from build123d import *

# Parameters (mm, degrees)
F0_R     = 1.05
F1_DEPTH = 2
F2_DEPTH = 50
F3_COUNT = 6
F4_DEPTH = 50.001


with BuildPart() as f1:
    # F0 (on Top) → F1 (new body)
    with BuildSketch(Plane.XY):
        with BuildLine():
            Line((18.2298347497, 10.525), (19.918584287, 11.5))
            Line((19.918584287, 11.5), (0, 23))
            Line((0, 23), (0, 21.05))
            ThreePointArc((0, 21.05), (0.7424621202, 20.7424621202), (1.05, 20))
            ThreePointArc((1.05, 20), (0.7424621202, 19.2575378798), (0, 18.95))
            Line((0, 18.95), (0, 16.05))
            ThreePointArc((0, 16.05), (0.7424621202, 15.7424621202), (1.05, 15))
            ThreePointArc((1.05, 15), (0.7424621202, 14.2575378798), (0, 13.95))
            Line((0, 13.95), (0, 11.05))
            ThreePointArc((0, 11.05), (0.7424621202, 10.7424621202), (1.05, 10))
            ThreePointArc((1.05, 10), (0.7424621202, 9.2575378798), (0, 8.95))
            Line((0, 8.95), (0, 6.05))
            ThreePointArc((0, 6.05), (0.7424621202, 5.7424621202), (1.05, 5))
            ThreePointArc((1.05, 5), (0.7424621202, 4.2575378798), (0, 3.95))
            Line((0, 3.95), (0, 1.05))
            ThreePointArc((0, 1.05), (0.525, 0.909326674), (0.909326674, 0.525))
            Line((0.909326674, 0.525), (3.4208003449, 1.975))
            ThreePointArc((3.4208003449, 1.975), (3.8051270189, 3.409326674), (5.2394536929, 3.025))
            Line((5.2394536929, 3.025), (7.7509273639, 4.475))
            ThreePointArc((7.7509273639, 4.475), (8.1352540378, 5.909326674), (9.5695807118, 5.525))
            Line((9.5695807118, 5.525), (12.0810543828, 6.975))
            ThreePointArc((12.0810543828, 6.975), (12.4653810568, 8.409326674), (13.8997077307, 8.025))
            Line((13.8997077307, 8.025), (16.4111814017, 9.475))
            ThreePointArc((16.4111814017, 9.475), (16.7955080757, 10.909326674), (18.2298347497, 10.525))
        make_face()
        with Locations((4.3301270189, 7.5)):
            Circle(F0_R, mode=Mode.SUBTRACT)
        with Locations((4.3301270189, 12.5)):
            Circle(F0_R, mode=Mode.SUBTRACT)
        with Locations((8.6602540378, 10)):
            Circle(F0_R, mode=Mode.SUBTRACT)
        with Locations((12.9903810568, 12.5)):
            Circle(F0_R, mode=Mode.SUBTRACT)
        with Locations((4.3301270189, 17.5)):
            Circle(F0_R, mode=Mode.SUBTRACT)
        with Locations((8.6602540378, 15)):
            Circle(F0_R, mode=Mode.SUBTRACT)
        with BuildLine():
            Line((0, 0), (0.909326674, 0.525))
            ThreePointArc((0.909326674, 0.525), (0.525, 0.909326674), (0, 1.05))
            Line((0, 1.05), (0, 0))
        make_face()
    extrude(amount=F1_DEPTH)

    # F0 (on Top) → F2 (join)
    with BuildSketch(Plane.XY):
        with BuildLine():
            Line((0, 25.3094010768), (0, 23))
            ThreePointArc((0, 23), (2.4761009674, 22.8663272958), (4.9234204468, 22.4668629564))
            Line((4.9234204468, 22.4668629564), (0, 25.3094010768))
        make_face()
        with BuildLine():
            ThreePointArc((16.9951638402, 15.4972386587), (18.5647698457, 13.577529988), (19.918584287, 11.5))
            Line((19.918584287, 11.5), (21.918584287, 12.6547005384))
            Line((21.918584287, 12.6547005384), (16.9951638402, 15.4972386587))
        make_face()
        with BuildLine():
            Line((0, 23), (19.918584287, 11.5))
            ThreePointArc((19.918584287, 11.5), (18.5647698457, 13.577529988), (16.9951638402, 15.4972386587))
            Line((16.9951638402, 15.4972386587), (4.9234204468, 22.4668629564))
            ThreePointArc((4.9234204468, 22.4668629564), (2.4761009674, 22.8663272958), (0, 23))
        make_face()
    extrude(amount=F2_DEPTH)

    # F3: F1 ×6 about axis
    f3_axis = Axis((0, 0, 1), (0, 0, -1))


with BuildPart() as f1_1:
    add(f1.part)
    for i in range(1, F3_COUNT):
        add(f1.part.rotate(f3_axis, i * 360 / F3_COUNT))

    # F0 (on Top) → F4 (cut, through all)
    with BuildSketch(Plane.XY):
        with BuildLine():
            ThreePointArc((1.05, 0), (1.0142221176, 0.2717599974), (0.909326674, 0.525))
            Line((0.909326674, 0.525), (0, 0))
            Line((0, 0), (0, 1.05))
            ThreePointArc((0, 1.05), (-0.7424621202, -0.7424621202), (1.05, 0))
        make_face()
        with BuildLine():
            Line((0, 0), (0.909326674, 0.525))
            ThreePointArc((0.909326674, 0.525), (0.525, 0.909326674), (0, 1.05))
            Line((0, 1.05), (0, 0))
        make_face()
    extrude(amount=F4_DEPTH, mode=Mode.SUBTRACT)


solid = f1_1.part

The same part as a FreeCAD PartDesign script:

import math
import FreeCAD as App
import Part
import Sketcher

V = App.Vector
Q = App.Units.Quantity


def add_polygon(sketch, points):
    """Adds a closed chain of lines whose ends are joined by coincident constraints."""
    first, n = sketch.GeometryCount, len(points)
    for a, b in zip(points, points[1:] + points[:1]):
        sketch.addGeometry(Part.LineSegment(App.Vector(*a, 0), App.Vector(*b, 0)), False)
    for i in range(n):
        sketch.addConstraint(Sketcher.Constraint("Coincident", first + i, 2, first + (i + 1) % n, 1))

doc = App.newDocument("Part")
body = doc.addObject("PartDesign::Body", "Body")

# Sketch on XY plane
sketch1 = body.newObject("Sketcher::SketchObject", "Sketch")
sketch1.AttachmentSupport = (doc.getObject("XY_Plane"), [""])
sketch1.MapMode = "FlatFace"
sketch1.addGeometry([
    Part.LineSegment(V(18.229835, 10.525, 0), V(19.918584, 11.5, 0)),  # 0
    Part.LineSegment(V(19.918584, 11.5, 0), V(0, 23, 0)),  # 1
    Part.LineSegment(V(0, 23, 0), V(0, 21.05, 0)),  # 2
    Part.ArcOfCircle(Part.Circle(V(0, 20, 0), V(0, 0, 1), 1.05), math.radians(0), math.radians(90)),  # 3
    Part.ArcOfCircle(Part.Circle(V(0, 20, 0), V(0, 0, 1), 1.05), math.radians(-90), math.radians(0)),  # 4
    Part.LineSegment(V(0, 18.95, 0), V(0, 16.05, 0)),  # 5
    Part.ArcOfCircle(Part.Circle(V(0, 15, 0), V(0, 0, 1), 1.05), math.radians(0), math.radians(90)),  # 6
    Part.ArcOfCircle(Part.Circle(V(0, 15, 0), V(0, 0, 1), 1.05), math.radians(-90), math.radians(0)),  # 7
    Part.LineSegment(V(0, 13.95, 0), V(0, 11.05, 0)),  # 8
    Part.ArcOfCircle(Part.Circle(V(0, 10, 0), V(0, 0, 1), 1.05), math.radians(0), math.radians(90)),  # 9
    Part.ArcOfCircle(Part.Circle(V(0, 10, 0), V(0, 0, 1), 1.05), math.radians(-90), math.radians(0)),  # 10
    Part.LineSegment(V(0, 8.95, 0), V(0, 6.05, 0)),  # 11
    Part.ArcOfCircle(Part.Circle(V(0, 5, 0), V(0, 0, 1), 1.05), math.radians(0), math.radians(90)),  # 12
    Part.ArcOfCircle(Part.Circle(V(0, 5, 0), V(0, 0, 1), 1.05), math.radians(-90), math.radians(0)),  # 13
    Part.LineSegment(V(0, 3.95, 0), V(0, 0, 0)),  # 14
    Part.LineSegment(V(0, 0, 0), V(0.909327, 0.525, 0)),  # 15
    Part.LineSegment(V(0.909327, 0.525, 0), V(3.4208, 1.975, 0)),  # 16
    Part.ArcOfCircle(Part.Circle(V(4.330127, 2.5, 0), V(0, 0, 1), 1.05), math.radians(30), math.radians(210)),  # 17
    Part.LineSegment(V(5.239454, 3.025, 0), V(7.750927, 4.475, 0)),  # 18
    Part.ArcOfCircle(Part.Circle(V(8.660254, 5, 0), V(0, 0, 1), 1.05), math.radians(30), math.radians(210)),  # 19
    Part.LineSegment(V(9.569581, 5.525, 0), V(12.081054, 6.975, 0)),  # 20
    Part.ArcOfCircle(Part.Circle(V(12.990381, 7.5, 0), V(0, 0, 1), 1.05), math.radians(30), math.radians(210)),  # 21
    Part.LineSegment(V(13.899708, 8.025, 0), V(16.411181, 9.475, 0)),  # 22
    Part.ArcOfCircle(Part.Circle(V(17.320508, 10, 0), V(0, 0, 1), 1.05), math.radians(30), math.radians(210)),  # 23
    Part.Circle(V(4.330127, 7.5, 0), V(0, 0, 1), 1.05),  # 24
    Part.Circle(V(8.660254, 10, 0), V(0, 0, 1), 1.05),  # 25
    Part.Circle(V(4.330127, 12.5, 0), V(0, 0, 1), 1.05),  # 26
    Part.Circle(V(8.660254, 15, 0), V(0, 0, 1), 1.05),  # 27
    Part.Circle(V(4.330127, 17.5, 0), V(0, 0, 1), 1.05),  # 28
    Part.Circle(V(12.990381, 12.5, 0), V(0, 0, 1), 1.05),  # 29
], False)
sketch1.addConstraint([
    Sketcher.Constraint("Coincident", 0, 2, 1, 1),
    Sketcher.Constraint("Coincident", 1, 2, 2, 1),
    Sketcher.Constraint("Coincident", 2, 2, 3, 2),
    Sketcher.Constraint("Tangent", 3, 1, 4, 2),
    Sketcher.Constraint("Coincident", 4, 1, 5, 1),
    Sketcher.Constraint("Coincident", 5, 2, 6, 2),
    Sketcher.Constraint("Tangent", 6, 1, 7, 2),
    Sketcher.Constraint("Coincident", 7, 1, 8, 1),
    Sketcher.Constraint("Coincident", 8, 2, 9, 2),
    Sketcher.Constraint("Tangent", 9, 1, 10, 2),
    Sketcher.Constraint("Coincident", 10, 1, 11, 1),
    Sketcher.Constraint("Coincident", 11, 2, 12, 2),
    Sketcher.Constraint("Tangent", 12, 1, 13, 2),
    Sketcher.Constraint("Coincident", 13, 1, 14, 1),
    Sketcher.Constraint("Coincident", 14, 2, 15, 1),
    Sketcher.Constraint("Coincident", 15, 2, 16, 1),
    Sketcher.Constraint("Coincident", 16, 2, 17, 2),
    Sketcher.Constraint("Coincident", 17, 1, 18, 1),
    Sketcher.Constraint("Coincident", 18, 2, 19, 2),
    Sketcher.Constraint("Coincident", 19, 1, 20, 1),
    Sketcher.Constraint("Coincident", 20, 2, 21, 2),
    Sketcher.Constraint("Coincident", 21, 1, 22, 1),
    Sketcher.Constraint("Coincident", 22, 2, 23, 2),
    Sketcher.Constraint("Coincident", 23, 1, 0, 1),
    Sketcher.Constraint("Vertical", 2),
    Sketcher.Constraint("Vertical", 5),
    Sketcher.Constraint("Vertical", 8),
    Sketcher.Constraint("Vertical", 11),
    Sketcher.Constraint("Vertical", 14),
    Sketcher.Constraint("Coincident", 14, 2, -1, 1),
    Sketcher.Constraint("Equal", 3, 4),
    Sketcher.Constraint("Equal", 4, 6),
    Sketcher.Constraint("Equal", 6, 7),
    Sketcher.Constraint("Equal", 7, 9),
    Sketcher.Constraint("Equal", 9, 10),
    Sketcher.Constraint("Equal", 10, 12),
    Sketcher.Constraint("Equal", 12, 13),
    Sketcher.Constraint("Equal", 13, 17),
    Sketcher.Constraint("Equal", 17, 19),
    Sketcher.Constraint("Equal", 19, 21),
    Sketcher.Constraint("Equal", 21, 23),
    Sketcher.Constraint("Equal", 23, 24),
    Sketcher.Constraint("Equal", 24, 25),
    Sketcher.Constraint("Equal", 25, 26),
    Sketcher.Constraint("Equal", 26, 27),
    Sketcher.Constraint("Equal", 27, 28),
    Sketcher.Constraint("Equal", 28, 29),
    Sketcher.Constraint("PointOnObject", 3, 3, -2),
    Sketcher.Constraint("PointOnObject", 6, 3, -2),
    Sketcher.Constraint("PointOnObject", 9, 3, -2),
    Sketcher.Constraint("PointOnObject", 12, 3, -2),
    Sketcher.Constraint("PointOnObject", 1, 2, -2),
    Sketcher.Constraint("PointOnObject", 4, 1, -2),
    Sketcher.Constraint("PointOnObject", 7, 1, -2),
    Sketcher.Constraint("PointOnObject", 10, 1, -2),
    Sketcher.Constraint("Parallel", 0, 15),
    Sketcher.Constraint("Parallel", 15, 16),
    Sketcher.Constraint("Parallel", 16, 18),
    Sketcher.Constraint("Parallel", 18, 20),
    Sketcher.Constraint("Parallel", 20, 22),
    Sketcher.Constraint("Horizontal", 13, 3, 19, 3),
    Sketcher.Constraint("Horizontal", 10, 3, 23, 3),
    Sketcher.Constraint("Horizontal", 21, 3, 24, 3),
    Sketcher.Constraint("Horizontal", 23, 3, 25, 3),
    Sketcher.Constraint("Horizontal", 7, 3, 27, 3),
    Sketcher.Constraint("Horizontal", 26, 3, 29, 3),
    Sketcher.Constraint("Horizontal", 4, 3, 3, 1),
    Sketcher.Constraint("Horizontal", 27, 3, 6, 1),
    Sketcher.Constraint("Horizontal", 25, 3, 9, 1),
    Sketcher.Constraint("Horizontal", 19, 3, 12, 1),
    Sketcher.Constraint("Vertical", 17, 3, 24, 3),
    Sketcher.Constraint("Vertical", 19, 3, 25, 3),
    Sketcher.Constraint("Vertical", 24, 3, 26, 3),
    Sketcher.Constraint("Vertical", 25, 3, 27, 3),
    Sketcher.Constraint("Vertical", 26, 3, 28, 3),
    Sketcher.Constraint("Vertical", 21, 3, 29, 3),
    Sketcher.Constraint("Equal", 5, 8),
    Sketcher.Constraint("Equal", 8, 11),
    Sketcher.Constraint("Equal", 16, 18),
    Sketcher.Constraint("Equal", 18, 20),
    Sketcher.Constraint("Equal", 20, 22),
    Sketcher.Constraint("Diameter", 24, 2.1),
    Sketcher.Constraint("Angle", 0, Q("30 deg")),
    Sketcher.Constraint("Angle", 1, Q("150 deg")),
    Sketcher.Constraint("Distance", 1, 23.0),
    Sketcher.Constraint("DistanceY", 5, 2, 5, 1, 2.9),
    Sketcher.Constraint("DistanceY", -1, 1, 3, 3, 20.0),
    Sketcher.Constraint("DistanceY", -1, 1, 1, 2, 23.0),
    Sketcher.Constraint("DistanceY", 17, 3, 21, 3, 5.0),
    Sketcher.Constraint("DistanceY", 24, 3, 26, 3, 5.0),
    Sketcher.Constraint("DistanceY", 26, 3, 28, 3, 5.0),
    Sketcher.Constraint("DistanceY", 0, 2, 29, 3, 1.0),
    Sketcher.Constraint("Distance", 16, 2.9),
    Sketcher.Constraint("DistanceY", 16, 2, 18, 2, 2.5),
    Sketcher.Constraint("DistanceY", 17, 1, 19, 1, 2.5),
    Sketcher.Constraint("DistanceY", 19, 1, 21, 1, 2.5),
    Sketcher.Constraint("Distance", 0, 1.95),
])
pad1 = body.newObject("PartDesign::Pad", "Pad")
pad1.Profile = sketch1
pad1.Length = 2

# Sketch on XY plane
sketch2 = body.newObject("Sketcher::SketchObject", "Sketch001")
sketch2.AttachmentSupport = (doc.getObject("XY_Plane"), [""])
sketch2.MapMode = "FlatFace"
add_polygon(sketch2, [(0, 25.309401), (0, 23), (19.918584, 11.5), (21.918584, 12.654701), (16.995164, 15.497239), (4.92342, 22.466863)])  # lines 0-5
sketch2.addConstraint([
    Sketcher.Constraint("Vertical", 0),
    Sketcher.Constraint("PointOnObject", 0, 2, -2),
    Sketcher.Constraint("Parallel", 1, 3),
    Sketcher.Constraint("Parallel", 3, 4),
    Sketcher.Constraint("Parallel", 4, 5),
    Sketcher.Constraint("Equal", 3, 5),
    Sketcher.Constraint("Angle", 1, Q("-30 deg")),
    Sketcher.Constraint("Angle", 2, Q("30 deg")),
    Sketcher.Constraint("Distance", 1, 23.0),
    Sketcher.Constraint("DistanceY", -1, 1, 0, 2, 23.0),
    Sketcher.Constraint("DistanceX", 1, 2, 2, 2, 2.0),
    Sketcher.Constraint("Distance", 4, 13.939249),
])
pad2 = body.newObject("PartDesign::Pad", "Pad001")
pad2.Profile = sketch2
pad2.Length = 50
body2 = doc.addObject("PartDesign::Body", "Body001")
doc.recompute()

body2.BaseFeature = body
doc.recompute()

body3 = doc.addObject("PartDesign::Body", "Body002")
body3.BaseFeature = body
body3.Placement = App.Placement(V(0, 0, 0), App.Rotation(V(0, 0, -1), 60))
boolean = body2.newObject("PartDesign::Boolean", "Boolean")
boolean.Type = "Fuse"
boolean.addObjects([body3])
doc.recompute()

body4 = doc.addObject("PartDesign::Body", "Body003")
body4.BaseFeature = body
body4.Placement = App.Placement(V(0, 0, 0), App.Rotation(V(0, 0, -1), 120))
boolean2 = body2.newObject("PartDesign::Boolean", "Boolean001")
boolean2.Type = "Fuse"
boolean2.addObjects([body4])
doc.recompute()

body5 = doc.addObject("PartDesign::Body", "Body004")
body5.BaseFeature = body
body5.Placement = App.Placement(V(0, 0, 0), App.Rotation(V(0, 0, -1), 180))
boolean3 = body2.newObject("PartDesign::Boolean", "Boolean002")
boolean3.Type = "Fuse"
boolean3.addObjects([body5])
doc.recompute()

body6 = doc.addObject("PartDesign::Body", "Body005")
body6.BaseFeature = body
body6.Placement = App.Placement(V(0, 0, 0), App.Rotation(V(0, 0, -1), 240))
boolean4 = body2.newObject("PartDesign::Boolean", "Boolean003")
boolean4.Type = "Fuse"
boolean4.addObjects([body6])
doc.recompute()

body.Placement = App.Placement(V(0, 0, 0), App.Rotation(V(0, 0, -1), 300))
boolean5 = body2.newObject("PartDesign::Boolean", "Boolean004")
boolean5.Type = "Fuse"
boolean5.addObjects([body])

# Sketch on XY plane
sketch3 = body2.newObject("Sketcher::SketchObject", "Sketch002")
sketch3.AttachmentSupport = (doc.getObject("XY_Plane001"), [""])
sketch3.MapMode = "FlatFace"
sketch3.addGeometry([
    Part.ArcOfCircle(Part.Circle(V(0, 0, 0), V(0, 0, 1), 1.05), math.radians(0), math.radians(30)),
    Part.ArcOfCircle(Part.Circle(V(0, 0, 0), V(0, 0, 1), 1.05), math.radians(30), math.radians(90)),
    Part.ArcOfCircle(Part.Circle(V(0, 0, 0), V(0, 0, 1), 1.05), math.radians(90), math.radians(360)),
], False)
sketch3.addConstraint([
    Sketcher.Constraint("Tangent", 0, 2, 1, 1),
    Sketcher.Constraint("Tangent", 1, 2, 2, 1),
    Sketcher.Constraint("Tangent", 2, 2, 0, 1),
    Sketcher.Constraint("Coincident", 0, 3, -1, 1),
    Sketcher.Constraint("PointOnObject", 1, 2, -2),
    Sketcher.Constraint("PointOnObject", 2, 2, -1),
    Sketcher.Constraint("Radius", 0, 1.05),
    Sketcher.Constraint("DistanceY", -1, 1, 0, 2, 0.525),
])
pocket1 = body2.newObject("PartDesign::Pocket", "Pocket")
pocket1.Profile = sketch3
pocket1.Type = "ThroughAll"
pocket1.Reversed = True

doc.recompute()
